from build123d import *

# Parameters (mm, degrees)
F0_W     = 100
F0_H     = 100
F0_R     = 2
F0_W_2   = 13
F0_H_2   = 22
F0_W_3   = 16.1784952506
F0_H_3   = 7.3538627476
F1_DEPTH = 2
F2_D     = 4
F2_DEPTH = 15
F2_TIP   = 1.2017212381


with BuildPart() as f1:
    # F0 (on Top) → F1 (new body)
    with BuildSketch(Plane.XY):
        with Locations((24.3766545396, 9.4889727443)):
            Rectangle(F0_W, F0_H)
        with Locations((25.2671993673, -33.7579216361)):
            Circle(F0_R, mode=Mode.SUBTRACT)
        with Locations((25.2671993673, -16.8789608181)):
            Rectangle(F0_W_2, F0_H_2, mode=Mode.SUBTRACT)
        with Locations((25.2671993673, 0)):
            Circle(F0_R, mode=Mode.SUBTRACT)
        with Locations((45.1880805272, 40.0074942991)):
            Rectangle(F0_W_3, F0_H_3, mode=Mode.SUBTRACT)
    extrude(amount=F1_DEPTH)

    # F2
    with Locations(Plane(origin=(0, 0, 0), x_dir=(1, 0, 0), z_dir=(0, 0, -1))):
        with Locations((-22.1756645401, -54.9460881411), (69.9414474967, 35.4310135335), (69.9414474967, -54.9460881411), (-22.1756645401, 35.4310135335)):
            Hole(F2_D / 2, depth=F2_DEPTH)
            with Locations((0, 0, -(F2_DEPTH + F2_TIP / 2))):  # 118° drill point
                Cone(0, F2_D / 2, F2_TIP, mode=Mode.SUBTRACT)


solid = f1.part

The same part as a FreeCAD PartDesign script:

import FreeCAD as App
import Part
import Sketcher
from FreeCAD import Vector
Q = App.Units.Quantity

doc = App.newDocument("Part")
params = doc.addObject("Spreadsheet::Sheet", "Params")
for row, (alias, value) in enumerate([
    ("sketch1_diameter", "4 mm"),
    ("sketch1_width", "100 mm"),
    ("sketch1_width2", "13 mm"),
    ("sketch1_height", "22 mm"),
    ("pad1_length", "2 mm"),
    ("sketch2_diameter", "4 mm"),
    ("hole_diameter", "4 mm"),
    ("hole_depth", "15 mm"),
], start=1):
    params.set(f"A{row}", alias)
    params.set(f"B{row}", "=" + value)
    params.setAlias(f"B{row}", alias)

body = doc.addObject("PartDesign::Body", "Body")

# Sketch on XY plane
sketch1 = doc.addObject("Sketcher::SketchObject", "Sketch")
body.addObject(sketch1)
sketch1.AttachmentSupport = (doc.XY_Plane, [""])
sketch1.MapMode = "FlatFace"
sketch1.addGeometry(Part.LineSegment(Vector(-25.6, 59.5, 0), Vector(-25.6, -40.5, 0)), False)
sketch1.addGeometry(Part.LineSegment(Vector(-25.6, -40.5, 0), Vector(74.4, -40.5, 0)), False)
sketch1.addGeometry(Part.LineSegment(Vector(74.4, -40.5, 0), Vector(74.4, 59.5, 0)), False)
sketch1.addGeometry(Part.LineSegment(Vector(74.4, 59.5, 0), Vector(-25.6, 59.5, 0)), False)
sketch1.addGeometry(Part.Circle(Vector(25.3, -33.8, 0), Vector(0, 0, 1), 2), False)
sketch1.addGeometry(Part.LineSegment(Vector(31.8, -27.9, 0), Vector(18.8, -27.9, 0)), False)
sketch1.addGeometry(Part.LineSegment(Vector(18.8, -27.9, 0), Vector(18.8, -5.9, 0)), False)
sketch1.addGeometry(Part.LineSegment(Vector(18.8, -5.9, 0), Vector(31.8, -5.9, 0)), False)
sketch1.addGeometry(Part.LineSegment(Vector(31.8, -5.9, 0), Vector(31.8, -27.9, 0)), False)
sketch1.addGeometry(Part.Circle(Vector(25.3, 0, 0), Vector(0, 0, 1), 2), False)
sketch1.addGeometry(Part.LineSegment(Vector(53.3, 36.3, 0), Vector(37.1, 36.3, 0)), False)
sketch1.addGeometry(Part.LineSegment(Vector(37.1, 36.3, 0), Vector(37.1, 43.7, 0)), False)
sketch1.addGeometry(Part.LineSegment(Vector(37.1, 43.7, 0), Vector(53.3, 43.7, 0)), False)
sketch1.addGeometry(Part.LineSegment(Vector(53.3, 43.7, 0), Vector(53.3, 36.3, 0)), False)
sketch1.addConstraint(Sketcher.Constraint("Coincident", 0, 2, 1, 1))
sketch1.addConstraint(Sketcher.Constraint("Coincident", 1, 2, 2, 1))
sketch1.addConstraint(Sketcher.Constraint("Coincident", 2, 2, 3, 1))
sketch1.addConstraint(Sketcher.Constraint("Coincident", 3, 2, 0, 1))
sketch1.addConstraint(Sketcher.Constraint("Coincident", 5, 2, 6, 1))
sketch1.addConstraint(Sketcher.Constraint("Coincident", 6, 2, 7, 1))
sketch1.addConstraint(Sketcher.Constraint("Coincident", 7, 2, 8, 1))
sketch1.addConstraint(Sketcher.Constraint("Coincident", 8, 2, 5, 1))
sketch1.addConstraint(Sketcher.Constraint("Coincident", 10, 2, 11, 1))
sketch1.addConstraint(Sketcher.Constraint("Coincident", 11, 2, 12, 1))
sketch1.addConstraint(Sketcher.Constraint("Coincident", 12, 2, 13, 1))
sketch1.addConstraint(Sketcher.Constraint("Coincident", 13, 2, 10, 1))
sketch1.addConstraint(Sketcher.Constraint("Vertical", 0))
sketch1.addConstraint(Sketcher.Constraint("Horizontal", 1))
sketch1.addConstraint(Sketcher.Constraint("Vertical", 2))
sketch1.addConstraint(Sketcher.Constraint("Horizontal", 3))
sketch1.addConstraint(Sketcher.Constraint("Horizontal", 5))
sketch1.addConstraint(Sketcher.Constraint("Vertical", 6))
sketch1.addConstraint(Sketcher.Constraint("Horizontal", 7))
sketch1.addConstraint(Sketcher.Constraint("Vertical", 8))
sketch1.addConstraint(Sketcher.Constraint("Horizontal", 10))
sketch1.addConstraint(Sketcher.Constraint("Vertical", 11))
sketch1.addConstraint(Sketcher.Constraint("Horizontal", 12))
sketch1.addConstraint(Sketcher.Constraint("Vertical", 13))
sketch1.addConstraint(Sketcher.Constraint("Equal", 4, 9))
sketch1.addConstraint(Sketcher.Constraint("PointOnObject", 9, 3, -1))
sketch1.addConstraint(Sketcher.Constraint("Vertical", 4, 3, 9, 3))
sketch1.addConstraint(Sketcher.Constraint("Equal", 3, 0))
sketch1.addConstraint(Sketcher.Constraint("Diameter", 4, Q("4 mm")))
sketch1.addConstraint(Sketcher.Constraint("DistanceX", 1, 1, 1, 2, Q("100 mm")))
sketch1.addConstraint(Sketcher.Constraint("DistanceX", 5, 2, 5, 1, Q("13 mm")))
sketch1.addConstraint(Sketcher.Constraint("DistanceY", 6, 1, 6, 2, Q("22 mm")))
sketch1.addConstraint(Sketcher.Constraint("DistanceX", 5, 2, 4, 3, Q("6.5 mm")))
sketch1.addConstraint(Sketcher.Constraint("DistanceX", -1, 1, 4, 3, Q("25.267199 mm")))
sketch1.addConstraint(Sketcher.Constraint("DistanceX", 10, 2, 10, 1, Q("16.178495 mm")))
sketch1.addConstraint(Sketcher.Constraint("DistanceY", 11, 1, 11, 2, Q("7.353863 mm")))
sketch1.addConstraint(Sketcher.Constraint("DistanceY", 4, 3, -1, 1, Q("33.757922 mm")))
sketch1.addConstraint(Sketcher.Constraint("DistanceY", 5, 2, -1, 1, Q("27.878961 mm")))
sketch1.addConstraint(Sketcher.Constraint("DistanceX", -1, 1, 12, 2, Q("53.277328 mm")))
sketch1.addConstraint(Sketcher.Constraint("DistanceX", 10, 2, 2, 2, Q("37.277822 mm")))
sketch1.addConstraint(Sketcher.Constraint("DistanceY", 10, 2, 2, 2, Q("23.15841 mm")))
sketch1.addConstraint(Sketcher.Constraint("DistanceY", 0, 2, -1, 1, Q("40.511027 mm")))
sketch1.setExpression("Constraints[28]", "Params.sketch1_diameter")
sketch1.setExpression("Constraints[29]", "Params.sketch1_width")
sketch1.setExpression("Constraints[30]", "Params.sketch1_width2")
sketch1.setExpression("Constraints[31]", "Params.sketch1_height")
pad1 = doc.addObject("PartDesign::Pad", "Pad")
body.addObject(pad1)
pad1.Profile = sketch1
pad1.setExpression("Length", "Params.pad1_length")

# Sketch on XY plane
sketch2 = doc.addObject("Sketcher::SketchObject", "Sketch001")
body.addObject(sketch2)
sketch2.AttachmentSupport = (doc.XY_Plane, [""])
sketch2.MapMode = "FlatFace"
sketch2.addGeometry(Part.Circle(Vector(-22.2, 54.9, 0), Vector(0, 0, 1), 2), False)
sketch2.addGeometry(Part.Circle(Vector(69.9, -35.4, 0), Vector(0, 0, 1), 2), False)
sketch2.addGeometry(Part.Circle(Vector(69.9, 54.9, 0), Vector(0, 0, 1), 2), False)
sketch2.addGeometry(Part.Circle(Vector(-22.2, -35.4, 0), Vector(0, 0, 1), 2), False)
sketch2.addConstraint(Sketcher.Constraint("Equal", 0, 1))
sketch2.addConstraint(Sketcher.Constraint("Equal", 1, 2))
sketch2.addConstraint(Sketcher.Constraint("Equal", 2, 3))
sketch2.addConstraint(Sketcher.Constraint("Horizontal", 0, 3, 2, 3))
sketch2.addConstraint(Sketcher.Constraint("Horizontal", 1, 3, 3, 3))
sketch2.addConstraint(Sketcher.Constraint("Vertical", 1, 3, 2, 3))
sketch2.addConstraint(Sketcher.Constraint("Vertical", 0, 3, 3, 3))
sketch2.addConstraint(Sketcher.Constraint("Diameter", 0, Q("4 mm")))
sketch2.addConstraint(Sketcher.Constraint("DistanceY", 1, 3, 0, 3, Q("90.377102 mm")))
sketch2.addConstraint(Sketcher.Constraint("DistanceY", -1, 1, 0, 3, Q("54.946088 mm")))
sketch2.addConstraint(Sketcher.Constraint("DistanceX", 0, 3, -1, 1, Q("22.175665 mm")))
sketch2.addConstraint(Sketcher.Constraint("DistanceX", -1, 1, 1, 3, Q("69.941447 mm")))
sketch2.setExpression("Constraints[7]", "Params.sketch2_diameter")
doc.recompute()
hole = doc.addObject("PartDesign::Hole", "Hole")
body.addObject(hole)
hole.Profile = sketch2
hole.ThreadType = "None"
hole.setExpression("Diameter", "Params.hole_diameter")
hole.DepthType = "Dimension"
hole.setExpression("Depth", "Params.hole_depth")
hole.DrillPoint = "Angled"
hole.DrillPointAngle = 118
hole.Reversed = True

doc.recompute()
